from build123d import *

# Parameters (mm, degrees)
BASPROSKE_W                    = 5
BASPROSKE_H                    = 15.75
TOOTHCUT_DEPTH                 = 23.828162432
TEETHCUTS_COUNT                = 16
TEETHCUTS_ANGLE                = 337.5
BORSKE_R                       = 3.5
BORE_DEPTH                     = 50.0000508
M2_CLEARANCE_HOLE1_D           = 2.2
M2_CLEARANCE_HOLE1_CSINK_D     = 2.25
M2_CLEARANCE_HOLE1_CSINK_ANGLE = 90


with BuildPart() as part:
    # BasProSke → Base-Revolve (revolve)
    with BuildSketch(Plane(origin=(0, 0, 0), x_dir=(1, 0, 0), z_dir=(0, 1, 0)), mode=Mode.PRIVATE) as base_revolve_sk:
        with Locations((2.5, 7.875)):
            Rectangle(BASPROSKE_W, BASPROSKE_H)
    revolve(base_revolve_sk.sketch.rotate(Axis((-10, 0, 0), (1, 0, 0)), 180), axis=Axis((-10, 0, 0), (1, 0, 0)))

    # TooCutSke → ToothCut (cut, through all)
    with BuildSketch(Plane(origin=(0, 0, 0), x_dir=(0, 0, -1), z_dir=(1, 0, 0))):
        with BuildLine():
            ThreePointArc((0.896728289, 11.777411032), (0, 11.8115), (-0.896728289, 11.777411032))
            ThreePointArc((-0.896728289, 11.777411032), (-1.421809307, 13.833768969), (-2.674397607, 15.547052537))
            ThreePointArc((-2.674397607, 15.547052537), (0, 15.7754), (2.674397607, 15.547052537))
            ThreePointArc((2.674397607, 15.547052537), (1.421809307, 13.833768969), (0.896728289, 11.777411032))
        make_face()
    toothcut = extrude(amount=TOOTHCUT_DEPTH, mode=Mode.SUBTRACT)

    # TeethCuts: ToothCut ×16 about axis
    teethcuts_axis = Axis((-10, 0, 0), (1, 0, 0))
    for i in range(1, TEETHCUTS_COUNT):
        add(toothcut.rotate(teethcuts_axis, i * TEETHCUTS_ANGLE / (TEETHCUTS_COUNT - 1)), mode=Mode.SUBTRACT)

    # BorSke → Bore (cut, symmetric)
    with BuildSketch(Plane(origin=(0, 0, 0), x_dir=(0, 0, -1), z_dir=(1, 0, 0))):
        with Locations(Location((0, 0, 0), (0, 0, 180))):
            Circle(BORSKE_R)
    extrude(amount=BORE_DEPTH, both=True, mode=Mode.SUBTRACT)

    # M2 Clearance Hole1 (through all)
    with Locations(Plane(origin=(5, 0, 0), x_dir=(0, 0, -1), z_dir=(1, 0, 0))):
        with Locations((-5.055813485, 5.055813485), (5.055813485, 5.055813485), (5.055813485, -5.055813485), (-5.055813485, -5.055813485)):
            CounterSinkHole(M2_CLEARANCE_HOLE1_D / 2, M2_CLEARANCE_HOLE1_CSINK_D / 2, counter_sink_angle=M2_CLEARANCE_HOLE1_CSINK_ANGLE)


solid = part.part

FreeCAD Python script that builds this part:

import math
import FreeCAD as App
import Part
import Sketcher
Q = App.Units.Quantity


def add_polygon(sketch, points):
    """Adds a closed chain of lines whose ends are joined by coincident constraints."""
    first, n = sketch.GeometryCount, len(points)
    for a, b in zip(points, points[1:] + points[:1]):
        sketch.addGeometry(Part.LineSegment(App.Vector(*a, 0), App.Vector(*b, 0)), False)
    for i in range(n):
        sketch.addConstraint(Sketcher.Constraint("Coincident", first + i, 2, first + (i + 1) % n, 1))

doc = App.newDocument("Part")
params = doc.addObject("Spreadsheet::Sheet", "Params")
for row, (alias, value) in enumerate([
    ("sketch1_width", "5 mm"),
    ("sketch1_height", "15.75 mm"),
    ("revolution_angle", "360 deg"),
    ("sketch2_radius", "5.6 mm"),
    ("sketch3_diameter", "7 mm"),
    ("pocket2_length", "100.000102 mm"),
    ("sketch4_diameter", "2.2 mm"),
    ("hole_diameter", "2.2 mm"),
    ("hole_csink_diameter", "2.25 mm"),
], start=1):
    params.set(f"A{row}", alias)
    params.set(f"B{row}", "=" + value)
    params.setAlias(f"B{row}", alias)

body = doc.addObject("PartDesign::Body", "Body")

# Sketch on XZ plane
sketch1 = body.newObject("Sketcher::SketchObject", "Sketch")
sketch1.AttachmentSupport = (doc.getObject("XZ_Plane"), [""])
sketch1.MapMode = "FlatFace"
add_polygon(sketch1, [(0, -15.75), (0, 0), (5, 0), (5, -15.75)])  # lines 0-3
sketch1.addConstraint([
    Sketcher.Constraint("Vertical", 0),
    Sketcher.Constraint("Horizontal", 1),
    Sketcher.Constraint("Vertical", 2),
    Sketcher.Constraint("Horizontal", 3),
    Sketcher.Constraint("Coincident", 0, 2, -1, 1),
    Sketcher.Constraint("DistanceX", 1, 1, 1, 2, Q("5 mm")),
    Sketcher.Constraint("DistanceY", 0, 1, 0, 2, Q("15.75 mm")),
])
sketch1.setExpression("Constraints[9]", "Params.sketch1_width")
sketch1.setExpression("Constraints[10]", "Params.sketch1_height")
revolution = body.newObject("PartDesign::Revolution", "Revolution")
revolution.Profile = sketch1
revolution.ReferenceAxis = (sketch1, ["H_Axis"])
revolution.setExpression("Angle", "Params.revolution_angle")

# Sketch on YZ plane
sketch2 = body.newObject("Sketcher::SketchObject", "Sketch001")
sketch2.AttachmentSupport = (doc.getObject("YZ_Plane"), [""])
sketch2.MapMode = "FlatFace"
sketch2.addGeometry([
    Part.ArcOfCircle(Part.Circle(App.Vector(0, 0, 0), App.Vector(0, 0, 1), 11.8115), math.radians(-4.354081), math.radians(4.354081)),
    Part.ArcOfCircle(Part.Circle(App.Vector(11.445214, -6.486866, 0), App.Vector(0, 0, 1), 5.6), math.radians(42.906034), math.radians(86.599164)),
    Part.ArcOfCircle(Part.Circle(App.Vector(0, 0, 0), App.Vector(0, 0, 1), 15.7754), math.radians(-9.760471), math.radians(9.760471)),
    Part.ArcOfCircle(Part.Circle(App.Vector(11.445214, 6.486866, 0), App.Vector(0, 0, 1), 5.6), math.radians(-86.599164), math.radians(-42.906034)),
], False)
sketch2.addConstraint([
    Sketcher.Constraint("Coincident", 0, 1, 1, 2),
    Sketcher.Constraint("Coincident", 1, 1, 2, 1),
    Sketcher.Constraint("Coincident", 2, 2, 3, 2),
    Sketcher.Constraint("Coincident", 3, 1, 0, 2),
    Sketcher.Constraint("Coincident", 0, 3, -1, 1),
    Sketcher.Constraint("Coincident", 2, 3, -1, 1),
    Sketcher.Constraint("Equal", 1, 3),
    Sketcher.Constraint("Symmetric", 1, 3, 3, 3, -1),
    Sketcher.Constraint("Radius", 1, Q("5.6 mm")),
    Sketcher.Constraint("Radius", 0, Q("11.8115 mm")),
    Sketcher.Constraint("Radius", 2, Q("15.7754 mm")),
    Sketcher.Constraint("DistanceX", -1, 1, 0, 1, Q("11.777411 mm")),
    Sketcher.Constraint("DistanceY", 1, 3, 0, 1, Q("5.590138 mm")),
])
sketch2.setExpression("Constraints[8]", "Params.sketch2_radius")
pocket1 = body.newObject("PartDesign::Pocket", "Pocket")
pocket1.Profile = sketch2
pocket1.Type = "ThroughAll"
pocket1.Reversed = True
doc.recompute()

polarpattern = body.newObject("PartDesign::PolarPattern", "PolarPattern")
polarpattern.Originals = [pocket1]
polarpattern.Axis = (doc.getObject("X_Axis"), [""])
polarpattern.Angle = 360
polarpattern.Occurrences = 16
body.Tip = polarpattern

# Sketch on YZ plane
sketch3 = body.newObject("Sketcher::SketchObject", "Sketch002")
sketch3.AttachmentSupport = (doc.getObject("YZ_Plane"), [""])
sketch3.MapMode = "FlatFace"
sketch3.addGeometry(Part.Circle(App.Vector(0, 0, 0), App.Vector(0, 0, 1), 3.5), False)
sketch3.addConstraint([
    Sketcher.Constraint("Coincident", 0, 3, -1, 1),
    Sketcher.Constraint("Diameter", 0, Q("7 mm")),
])
sketch3.setExpression("Constraints[1]", "Params.sketch3_diameter")
pocket2 = body.newObject("PartDesign::Pocket", "Pocket001")
pocket2.Profile = sketch3
pocket2.setExpression("Length", "Params.pocket2_length")
pocket2.Midplane = True

# Sketch on YZ plane
sketch4 = body.newObject("Sketcher::SketchObject", "Sketch003")
sketch4.AttachmentSupport = (doc.getObject("YZ_Plane"), [""])
sketch4.MapMode = "FlatFace"
sketch4.AttachmentOffset = App.Placement(App.Vector(0, 0, 5), App.Rotation())
sketch4.addGeometry([
    Part.Circle(App.Vector(5.055813, 5.055813, 0), App.Vector(0, 0, 1), 1.1),
    Part.Circle(App.Vector(5.055813, -5.055813, 0), App.Vector(0, 0, 1), 1.1),
    Part.Circle(App.Vector(-5.055813, -5.055813, 0), App.Vector(0, 0, 1), 1.1),
    Part.Circle(App.Vector(-5.055813, 5.055813, 0), App.Vector(0, 0, 1), 1.1),
], False)
sketch4.addConstraint([
    Sketcher.Constraint("Equal", 0, 1),
    Sketcher.Constraint("Equal", 1, 2),
    Sketcher.Constraint("Equal", 2, 3),
    Sketcher.Constraint("Symmetric", 0, 3, 2, 3, -1, 1),
    Sketcher.Constraint("Symmetric", 1, 3, 3, 3, -1, 1),
    Sketcher.Constraint("Symmetric", 1, 3, 2, 3, -2),
    Sketcher.Constraint("Diameter", 0, Q("2.2 mm")),
    Sketcher.Constraint("DistanceX", -1, 1, 0, 3, Q("5.055813 mm")),
    Sketcher.Constraint("DistanceY", -1, 1, 0, 3, Q("5.055813 mm")),
])
sketch4.setExpression("Constraints[6]", "Params.sketch4_diameter")
doc.recompute()
hole = body.newObject("PartDesign::Hole", "Hole")
hole.Profile = sketch4
hole.ThreadType = "None"
hole.setExpression("Diameter", "Params.hole_diameter")
hole.DepthType = "ThroughAll"
hole.HoleCutType = "Countersink"
hole.setExpression("HoleCutDiameter", "Params.hole_csink_diameter")
hole.HoleCutCountersinkAngle = 90

doc.recompute()
